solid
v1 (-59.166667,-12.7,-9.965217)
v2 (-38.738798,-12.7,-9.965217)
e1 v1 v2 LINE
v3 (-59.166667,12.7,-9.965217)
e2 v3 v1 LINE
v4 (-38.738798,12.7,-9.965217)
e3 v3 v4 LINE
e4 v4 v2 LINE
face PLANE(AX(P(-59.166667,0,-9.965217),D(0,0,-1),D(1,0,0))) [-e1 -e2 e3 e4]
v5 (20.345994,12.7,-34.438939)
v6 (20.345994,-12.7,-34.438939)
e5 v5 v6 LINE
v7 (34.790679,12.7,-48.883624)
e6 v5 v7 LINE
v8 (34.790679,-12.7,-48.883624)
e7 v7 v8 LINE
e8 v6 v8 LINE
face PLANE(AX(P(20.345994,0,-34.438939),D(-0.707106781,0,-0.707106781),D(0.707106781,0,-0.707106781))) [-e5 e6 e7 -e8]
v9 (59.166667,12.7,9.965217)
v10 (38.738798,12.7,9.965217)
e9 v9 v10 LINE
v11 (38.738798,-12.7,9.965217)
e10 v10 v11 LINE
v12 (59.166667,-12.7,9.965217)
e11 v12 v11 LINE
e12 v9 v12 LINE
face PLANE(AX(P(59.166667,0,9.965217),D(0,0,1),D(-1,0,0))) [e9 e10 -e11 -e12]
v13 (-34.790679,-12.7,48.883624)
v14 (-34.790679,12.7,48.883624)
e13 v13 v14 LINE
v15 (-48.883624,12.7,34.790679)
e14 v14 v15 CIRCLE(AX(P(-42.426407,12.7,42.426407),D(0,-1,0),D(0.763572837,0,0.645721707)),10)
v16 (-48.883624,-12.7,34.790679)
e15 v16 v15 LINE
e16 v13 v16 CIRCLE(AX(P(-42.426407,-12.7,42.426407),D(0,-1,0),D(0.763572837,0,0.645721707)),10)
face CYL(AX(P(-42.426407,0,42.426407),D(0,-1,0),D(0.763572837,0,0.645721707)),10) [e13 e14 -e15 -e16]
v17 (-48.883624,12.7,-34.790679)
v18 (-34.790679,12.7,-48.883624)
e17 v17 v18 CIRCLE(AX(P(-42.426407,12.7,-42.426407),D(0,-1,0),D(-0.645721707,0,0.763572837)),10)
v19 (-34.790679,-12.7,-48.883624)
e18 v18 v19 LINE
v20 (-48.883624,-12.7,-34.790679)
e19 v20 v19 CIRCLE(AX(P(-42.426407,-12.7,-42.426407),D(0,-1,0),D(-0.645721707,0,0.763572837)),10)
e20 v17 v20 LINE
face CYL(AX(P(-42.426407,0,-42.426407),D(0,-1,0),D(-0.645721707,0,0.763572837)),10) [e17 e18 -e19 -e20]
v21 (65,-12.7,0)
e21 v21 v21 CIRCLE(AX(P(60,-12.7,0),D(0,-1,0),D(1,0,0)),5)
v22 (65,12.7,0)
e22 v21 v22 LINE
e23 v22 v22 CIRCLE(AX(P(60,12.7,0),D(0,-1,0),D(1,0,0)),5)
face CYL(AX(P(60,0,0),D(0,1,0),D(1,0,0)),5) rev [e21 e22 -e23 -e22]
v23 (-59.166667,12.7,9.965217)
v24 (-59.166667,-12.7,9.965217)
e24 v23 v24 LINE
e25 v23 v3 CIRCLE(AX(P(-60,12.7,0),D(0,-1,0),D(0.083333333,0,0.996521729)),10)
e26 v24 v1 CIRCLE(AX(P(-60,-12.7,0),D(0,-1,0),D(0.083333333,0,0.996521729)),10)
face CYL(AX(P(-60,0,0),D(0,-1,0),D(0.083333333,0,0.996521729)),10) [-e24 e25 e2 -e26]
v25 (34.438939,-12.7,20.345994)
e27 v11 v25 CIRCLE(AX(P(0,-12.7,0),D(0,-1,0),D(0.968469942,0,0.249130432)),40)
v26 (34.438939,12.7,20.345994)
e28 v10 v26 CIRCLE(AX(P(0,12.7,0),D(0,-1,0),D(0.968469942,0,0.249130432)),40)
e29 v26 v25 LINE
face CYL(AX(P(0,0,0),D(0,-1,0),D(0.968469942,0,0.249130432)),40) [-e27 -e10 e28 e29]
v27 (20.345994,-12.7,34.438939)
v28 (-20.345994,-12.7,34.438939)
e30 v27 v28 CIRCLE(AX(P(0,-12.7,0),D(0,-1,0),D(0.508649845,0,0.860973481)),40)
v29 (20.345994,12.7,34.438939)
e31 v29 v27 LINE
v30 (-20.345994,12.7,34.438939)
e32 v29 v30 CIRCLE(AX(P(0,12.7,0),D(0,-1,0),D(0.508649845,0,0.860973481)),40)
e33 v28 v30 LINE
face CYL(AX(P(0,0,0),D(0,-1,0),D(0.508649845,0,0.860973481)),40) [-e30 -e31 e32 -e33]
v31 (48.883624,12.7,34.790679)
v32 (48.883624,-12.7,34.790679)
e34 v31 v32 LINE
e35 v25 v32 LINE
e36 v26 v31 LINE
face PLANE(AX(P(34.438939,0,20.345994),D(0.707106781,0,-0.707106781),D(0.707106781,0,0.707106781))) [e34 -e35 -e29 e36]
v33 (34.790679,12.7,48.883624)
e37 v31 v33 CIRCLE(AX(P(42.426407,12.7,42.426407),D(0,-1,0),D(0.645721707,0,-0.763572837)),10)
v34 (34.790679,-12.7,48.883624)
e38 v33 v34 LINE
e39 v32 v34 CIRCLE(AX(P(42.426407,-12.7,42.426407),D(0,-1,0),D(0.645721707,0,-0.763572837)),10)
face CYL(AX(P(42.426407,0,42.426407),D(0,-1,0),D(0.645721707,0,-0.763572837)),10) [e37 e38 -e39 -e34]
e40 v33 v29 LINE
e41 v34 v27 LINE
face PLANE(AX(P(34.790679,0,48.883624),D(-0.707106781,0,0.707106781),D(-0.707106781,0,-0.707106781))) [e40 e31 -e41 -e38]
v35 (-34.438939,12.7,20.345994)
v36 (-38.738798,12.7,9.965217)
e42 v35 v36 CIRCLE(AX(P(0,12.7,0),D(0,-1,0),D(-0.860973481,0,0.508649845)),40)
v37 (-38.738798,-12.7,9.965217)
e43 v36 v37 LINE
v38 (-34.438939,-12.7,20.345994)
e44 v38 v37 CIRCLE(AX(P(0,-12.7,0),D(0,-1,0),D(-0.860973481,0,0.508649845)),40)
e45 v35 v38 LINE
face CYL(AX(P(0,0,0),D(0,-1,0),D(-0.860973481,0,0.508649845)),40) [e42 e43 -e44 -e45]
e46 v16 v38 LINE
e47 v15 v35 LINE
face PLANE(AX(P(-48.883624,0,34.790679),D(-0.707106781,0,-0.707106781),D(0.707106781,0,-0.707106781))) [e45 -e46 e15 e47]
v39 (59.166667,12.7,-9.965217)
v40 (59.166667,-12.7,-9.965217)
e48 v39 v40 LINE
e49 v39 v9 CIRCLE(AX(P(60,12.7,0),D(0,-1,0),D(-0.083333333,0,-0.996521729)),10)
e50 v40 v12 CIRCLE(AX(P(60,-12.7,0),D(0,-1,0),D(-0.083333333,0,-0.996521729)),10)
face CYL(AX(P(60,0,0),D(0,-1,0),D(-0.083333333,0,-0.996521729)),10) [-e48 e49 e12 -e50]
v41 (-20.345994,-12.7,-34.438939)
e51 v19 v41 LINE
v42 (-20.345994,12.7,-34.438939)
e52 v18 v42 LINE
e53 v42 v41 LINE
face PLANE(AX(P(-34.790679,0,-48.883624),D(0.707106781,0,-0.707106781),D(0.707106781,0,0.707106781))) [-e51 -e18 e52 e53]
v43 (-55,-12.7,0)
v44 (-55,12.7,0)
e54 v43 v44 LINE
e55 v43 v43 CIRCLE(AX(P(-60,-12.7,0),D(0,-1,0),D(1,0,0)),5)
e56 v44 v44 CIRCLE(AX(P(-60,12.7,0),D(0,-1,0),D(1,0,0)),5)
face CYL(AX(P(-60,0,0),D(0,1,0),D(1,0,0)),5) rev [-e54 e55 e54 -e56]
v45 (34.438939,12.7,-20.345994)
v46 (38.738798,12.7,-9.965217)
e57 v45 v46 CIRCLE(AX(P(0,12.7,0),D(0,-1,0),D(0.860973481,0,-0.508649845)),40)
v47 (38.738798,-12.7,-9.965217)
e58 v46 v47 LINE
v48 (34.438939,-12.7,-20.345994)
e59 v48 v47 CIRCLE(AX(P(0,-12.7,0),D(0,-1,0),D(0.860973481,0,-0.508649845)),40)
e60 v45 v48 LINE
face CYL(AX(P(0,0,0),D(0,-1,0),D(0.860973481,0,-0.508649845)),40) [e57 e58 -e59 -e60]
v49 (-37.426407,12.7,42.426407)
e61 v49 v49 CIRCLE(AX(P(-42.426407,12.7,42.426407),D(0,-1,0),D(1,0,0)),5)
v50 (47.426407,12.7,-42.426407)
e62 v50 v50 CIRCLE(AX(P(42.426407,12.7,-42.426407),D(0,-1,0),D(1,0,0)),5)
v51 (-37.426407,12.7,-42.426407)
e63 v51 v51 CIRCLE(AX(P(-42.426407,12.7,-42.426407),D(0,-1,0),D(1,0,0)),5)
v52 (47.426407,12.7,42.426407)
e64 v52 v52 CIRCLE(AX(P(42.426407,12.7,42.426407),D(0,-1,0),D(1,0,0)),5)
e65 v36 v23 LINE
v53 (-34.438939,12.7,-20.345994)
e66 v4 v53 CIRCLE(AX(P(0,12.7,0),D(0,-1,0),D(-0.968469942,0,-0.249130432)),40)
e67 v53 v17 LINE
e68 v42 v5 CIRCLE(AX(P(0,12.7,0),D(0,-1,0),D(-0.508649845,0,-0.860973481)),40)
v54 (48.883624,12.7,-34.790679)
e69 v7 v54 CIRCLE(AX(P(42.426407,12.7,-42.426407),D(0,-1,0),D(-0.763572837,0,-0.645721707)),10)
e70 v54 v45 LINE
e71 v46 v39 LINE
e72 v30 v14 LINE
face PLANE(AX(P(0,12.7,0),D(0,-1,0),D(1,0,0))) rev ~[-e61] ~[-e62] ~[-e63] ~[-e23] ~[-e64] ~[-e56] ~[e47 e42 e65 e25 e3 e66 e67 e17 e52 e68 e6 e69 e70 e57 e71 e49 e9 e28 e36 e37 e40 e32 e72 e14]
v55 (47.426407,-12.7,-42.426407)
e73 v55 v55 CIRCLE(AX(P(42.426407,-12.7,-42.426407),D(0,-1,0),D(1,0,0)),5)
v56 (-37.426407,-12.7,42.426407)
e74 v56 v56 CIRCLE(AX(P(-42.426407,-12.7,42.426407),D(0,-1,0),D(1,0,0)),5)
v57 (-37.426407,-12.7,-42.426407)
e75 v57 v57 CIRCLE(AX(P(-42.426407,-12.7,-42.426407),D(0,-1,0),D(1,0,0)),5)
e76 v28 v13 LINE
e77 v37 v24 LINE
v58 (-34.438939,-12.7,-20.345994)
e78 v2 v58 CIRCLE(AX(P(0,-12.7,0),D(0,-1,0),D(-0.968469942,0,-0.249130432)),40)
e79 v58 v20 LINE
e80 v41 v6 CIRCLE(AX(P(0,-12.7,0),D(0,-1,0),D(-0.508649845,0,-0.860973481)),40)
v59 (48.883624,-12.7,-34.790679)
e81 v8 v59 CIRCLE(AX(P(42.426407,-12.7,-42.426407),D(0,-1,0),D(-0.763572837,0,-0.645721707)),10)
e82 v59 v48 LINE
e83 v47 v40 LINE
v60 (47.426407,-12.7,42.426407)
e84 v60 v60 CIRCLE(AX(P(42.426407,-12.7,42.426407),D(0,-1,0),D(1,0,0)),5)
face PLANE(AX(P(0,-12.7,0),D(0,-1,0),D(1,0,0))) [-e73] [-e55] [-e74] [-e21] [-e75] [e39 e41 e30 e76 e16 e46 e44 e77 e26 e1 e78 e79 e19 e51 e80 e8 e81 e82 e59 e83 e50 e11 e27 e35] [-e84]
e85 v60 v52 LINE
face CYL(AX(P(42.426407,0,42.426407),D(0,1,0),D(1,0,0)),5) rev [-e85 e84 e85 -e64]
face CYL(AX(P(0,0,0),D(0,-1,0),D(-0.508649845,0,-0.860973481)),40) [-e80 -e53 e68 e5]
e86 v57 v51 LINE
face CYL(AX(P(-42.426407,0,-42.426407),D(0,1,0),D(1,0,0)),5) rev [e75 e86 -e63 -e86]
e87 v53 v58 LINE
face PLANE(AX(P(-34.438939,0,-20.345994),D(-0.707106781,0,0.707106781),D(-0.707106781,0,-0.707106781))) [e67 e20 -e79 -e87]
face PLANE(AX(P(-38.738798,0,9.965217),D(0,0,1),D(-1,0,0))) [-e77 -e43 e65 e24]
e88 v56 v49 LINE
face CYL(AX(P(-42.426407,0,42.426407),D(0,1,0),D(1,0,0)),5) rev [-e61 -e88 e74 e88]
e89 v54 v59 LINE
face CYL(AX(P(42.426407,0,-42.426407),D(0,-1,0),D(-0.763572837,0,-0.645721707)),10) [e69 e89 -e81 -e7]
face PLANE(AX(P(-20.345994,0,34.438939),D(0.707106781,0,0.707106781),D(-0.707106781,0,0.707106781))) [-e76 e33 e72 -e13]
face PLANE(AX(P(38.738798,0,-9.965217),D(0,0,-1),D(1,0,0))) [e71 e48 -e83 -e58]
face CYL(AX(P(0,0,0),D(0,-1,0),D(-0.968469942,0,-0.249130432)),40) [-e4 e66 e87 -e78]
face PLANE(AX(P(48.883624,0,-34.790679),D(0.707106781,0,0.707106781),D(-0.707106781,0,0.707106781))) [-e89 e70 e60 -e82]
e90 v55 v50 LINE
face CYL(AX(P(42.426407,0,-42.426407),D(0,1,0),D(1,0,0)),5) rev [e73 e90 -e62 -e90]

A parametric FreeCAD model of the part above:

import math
import FreeCAD as App
import Part
import Sketcher

V = App.Vector
Q = App.Units.Quantity

doc = App.newDocument("Part")
body = doc.addObject("PartDesign::Body", "Body")

sketch1 = body.newObject("Sketcher::SketchObject", "Sketch")
sketch1.AttachmentSupport = (doc.getObject("XZ_Plane"), [""])
sketch1.MapMode = "FlatFace"
sketch1.addGeometry(Part.LineSegment(V(-48.883624, 34.790679, 0), V(-34.438939, 20.345994, 0)), False)
sketch1.addGeometry(Part.ArcOfCircle(Part.Circle(V(0, 0, 0), V(0, 0, 1), 40), math.radians(149.426062), math.radians(165.573938)), False)
sketch1.addGeometry(Part.LineSegment(V(-38.738798, 9.965217, 0), V(-59.166667, 9.965217, 0)), False)
sketch1.addGeometry(Part.ArcOfCircle(Part.Circle(V(-60, 0, 0), V(0, 0, 1), 10), math.radians(85.219808), math.radians(274.780192)), False)
sketch1.addGeometry(Part.LineSegment(V(-59.166667, -9.965217, 0), V(-38.738798, -9.965217, 0)), False)
sketch1.addGeometry(Part.ArcOfCircle(Part.Circle(V(0, 0, 0), V(0, 0, 1), 40), math.radians(-165.573938), math.radians(-149.426062)), False)
sketch1.addGeometry(Part.LineSegment(V(-34.438939, -20.345994, 0), V(-48.883624, -34.790679, 0)), False)
sketch1.addGeometry(Part.ArcOfCircle(Part.Circle(V(-42.426407, -42.426407, 0), V(0, 0, 1), 10), math.radians(130.219808), math.radians(319.780192)), False)
sketch1.addGeometry(Part.LineSegment(V(-34.790679, -48.883624, 0), V(-20.345994, -34.438939, 0)), False)
sketch1.addGeometry(Part.ArcOfCircle(Part.Circle(V(0, 0, 0), V(0, 0, 1), 40), math.radians(-120.573938), math.radians(-59.426062)), False)
sketch1.addGeometry(Part.LineSegment(V(20.345994, -34.438939, 0), V(34.790679, -48.883624, 0)), False)
sketch1.addGeometry(Part.ArcOfCircle(Part.Circle(V(42.426407, -42.426407, 0), V(0, 0, 1), 10), math.radians(-139.780192), math.radians(49.780192)), False)
sketch1.addGeometry(Part.LineSegment(V(48.883624, -34.790679, 0), V(34.438939, -20.345994, 0)), False)
sketch1.addGeometry(Part.ArcOfCircle(Part.Circle(V(0, 0, 0), V(0, 0, 1), 40), math.radians(-30.573938), math.radians(-14.426062)), False)
sketch1.addGeometry(Part.LineSegment(V(38.738798, -9.965217, 0), V(59.166667, -9.965217, 0)), False)
sketch1.addGeometry(Part.ArcOfCircle(Part.Circle(V(60, 0, 0), V(0, 0, 1), 10), math.radians(-94.780192), math.radians(94.780192)), False)
sketch1.addGeometry(Part.LineSegment(V(59.166667, 9.965217, 0), V(38.738798, 9.965217, 0)), False)
sketch1.addGeometry(Part.ArcOfCircle(Part.Circle(V(0, 0, 0), V(0, 0, 1), 40), math.radians(14.426062), math.radians(30.573938)), False)
sketch1.addGeometry(Part.LineSegment(V(34.438939, 20.345994, 0), V(48.883624, 34.790679, 0)), False)
sketch1.addGeometry(Part.ArcOfCircle(Part.Circle(V(42.426407, 42.426407, 0), V(0, 0, 1), 10), math.radians(-49.780192), math.radians(139.780192)), False)
sketch1.addGeometry(Part.LineSegment(V(34.790679, 48.883624, 0), V(20.345994, 34.438939, 0)), False)
sketch1.addGeometry(Part.ArcOfCircle(Part.Circle(V(0, 0, 0), V(0, 0, 1), 40), math.radians(59.426062), math.radians(120.573938)), False)
sketch1.addGeometry(Part.LineSegment(V(-20.345994, 34.438939, 0), V(-34.790679, 48.883624, 0)), False)
sketch1.addGeometry(Part.ArcOfCircle(Part.Circle(V(-42.426407, 42.426407, 0), V(0, 0, 1), 10), math.radians(40.219808), math.radians(229.780192)), False)
sketch1.addGeometry(Part.Circle(V(-42.426407, -42.426407, 0), V(0, 0, 1), 5), False)
sketch1.addGeometry(Part.Circle(V(42.426407, -42.426407, 0), V(0, 0, 1), 5), False)
sketch1.addGeometry(Part.Circle(V(-60, 0, 0), V(0, 0, 1), 5), False)
sketch1.addGeometry(Part.Circle(V(-42.426407, 42.426407, 0), V(0, 0, 1), 5), False)
sketch1.addGeometry(Part.Circle(V(60, 0, 0), V(0, 0, 1), 5), False)
sketch1.addGeometry(Part.Circle(V(42.426407, 42.426407, 0), V(0, 0, 1), 5), False)
sketch1.addConstraint(Sketcher.Constraint("Coincident", 0, 2, 1, 1))
sketch1.addConstraint(Sketcher.Constraint("Coincident", 1, 2, 2, 1))
sketch1.addConstraint(Sketcher.Constraint("Coincident", 2, 2, 3, 1))
sketch1.addConstraint(Sketcher.Constraint("Coincident", 3, 2, 4, 1))
sketch1.addConstraint(Sketcher.Constraint("Coincident", 4, 2, 5, 1))
sketch1.addConstraint(Sketcher.Constraint("Coincident", 5, 2, 6, 1))
sketch1.addConstraint(Sketcher.Constraint("Coincident", 6, 2, 7, 1))
sketch1.addConstraint(Sketcher.Constraint("Coincident", 7, 2, 8, 1))
sketch1.addConstraint(Sketcher.Constraint("Coincident", 8, 2, 9, 1))
sketch1.addConstraint(Sketcher.Constraint("Coincident", 9, 2, 10, 1))
sketch1.addConstraint(Sketcher.Constraint("Coincident", 10, 2, 11, 1))
sketch1.addConstraint(Sketcher.Constraint("Coincident", 11, 2, 12, 1))
sketch1.addConstraint(Sketcher.Constraint("Coincident", 12, 2, 13, 1))
sketch1.addConstraint(Sketcher.Constraint("Coincident", 13, 2, 14, 1))
sketch1.addConstraint(Sketcher.Constraint("Coincident", 14, 2, 15, 1))
sketch1.addConstraint(Sketcher.Constraint("Coincident", 15, 2, 16, 1))
sketch1.addConstraint(Sketcher.Constraint("Coincident", 16, 2, 17, 1))
sketch1.addConstraint(Sketcher.Constraint("Coincident", 17, 2, 18, 1))
sketch1.addConstraint(Sketcher.Constraint("Coincident", 18, 2, 19, 1))
sketch1.addConstraint(Sketcher.Constraint("Coincident", 19, 2, 20, 1))
sketch1.addConstraint(Sketcher.Constraint("Coincident", 20, 2, 21, 1))
sketch1.addConstraint(Sketcher.Constraint("Coincident", 21, 2, 22, 1))
sketch1.addConstraint(Sketcher.Constraint("Coincident", 22, 2, 23, 1))
sketch1.addConstraint(Sketcher.Constraint("Coincident", 23, 2, 0, 1))
sketch1.addConstraint(Sketcher.Constraint("Horizontal", 2))
sketch1.addConstraint(Sketcher.Constraint("Horizontal", 4))
sketch1.addConstraint(Sketcher.Constraint("Horizontal", 14))
sketch1.addConstraint(Sketcher.Constraint("Horizontal", 16))
sketch1.addConstraint(Sketcher.Constraint("Coincident", 1, 3, -1, 1))
sketch1.addConstraint(Sketcher.Constraint("Coincident", 5, 3, -1, 1))
sketch1.addConstraint(Sketcher.Constraint("Coincident", 9, 3, -1, 1))
sketch1.addConstraint(Sketcher.Constraint("Coincident", 13, 3, -1, 1))
sketch1.addConstraint(Sketcher.Constraint("Coincident", 17, 3, -1, 1))
sketch1.addConstraint(Sketcher.Constraint("Coincident", 21, 3, -1, 1))
sketch1.addConstraint(Sketcher.Constraint("Coincident", 24, 3, 7, 3))
sketch1.addConstraint(Sketcher.Constraint("Coincident", 25, 3, 11, 3))
sketch1.addConstraint(Sketcher.Constraint("Coincident", 26, 3, 3, 3))
sketch1.addConstraint(Sketcher.Constraint("Coincident", 27, 3, 23, 3))
sketch1.addConstraint(Sketcher.Constraint("Coincident", 28, 3, 15, 3))
sketch1.addConstraint(Sketcher.Constraint("Coincident", 29, 3, 19, 3))
sketch1.addConstraint(Sketcher.Constraint("Equal", 1, 5))
sketch1.addConstraint(Sketcher.Constraint("Equal", 3, 7))
sketch1.addConstraint(Sketcher.Constraint("Equal", 5, 9))
sketch1.addConstraint(Sketcher.Constraint("Equal", 7, 11))
sketch1.addConstraint(Sketcher.Constraint("Equal", 9, 13))
sketch1.addConstraint(Sketcher.Constraint("Equal", 11, 15))
sketch1.addConstraint(Sketcher.Constraint("Equal", 13, 17))
sketch1.addConstraint(Sketcher.Constraint("Equal", 15, 19))
sketch1.addConstraint(Sketcher.Constraint("Equal", 17, 21))
sketch1.addConstraint(Sketcher.Constraint("Equal", 19, 23))
sketch1.addConstraint(Sketcher.Constraint("Equal", 24, 25))
sketch1.addConstraint(Sketcher.Constraint("Equal", 25, 26))
sketch1.addConstraint(Sketcher.Constraint("Equal", 26, 27))
sketch1.addConstraint(Sketcher.Constraint("Equal", 27, 28))
sketch1.addConstraint(Sketcher.Constraint("Equal", 28, 29))
sketch1.addConstraint(Sketcher.Constraint("Symmetric", 3, 3, 15, 3, -1, 1))
sketch1.addConstraint(Sketcher.Constraint("Symmetric", 7, 3, 19, 3, -1, 1))
sketch1.addConstraint(Sketcher.Constraint("Symmetric", 11, 3, 23, 3, -1, 1))
sketch1.addConstraint(Sketcher.Constraint("Symmetric", 7, 3, 11, 3, -2))
sketch1.addConstraint(Sketcher.Constraint("Symmetric", 3, 2, 14, 2, -2))
sketch1.addConstraint(Sketcher.Constraint("Perpendicular", 0, 6))
sketch1.addConstraint(Sketcher.Constraint("Parallel", 6, 8))
sketch1.addConstraint(Sketcher.Constraint("Perpendicular", 8, 10))
sketch1.addConstraint(Sketcher.Constraint("Parallel", 10, 12))
sketch1.addConstraint(Sketcher.Constraint("Perpendicular", 12, 18))
sketch1.addConstraint(Sketcher.Constraint("Parallel", 18, 20))
sketch1.addConstraint(Sketcher.Constraint("Perpendicular", 20, 22))
sketch1.addConstraint(Sketcher.Constraint("Horizontal", 8, 2, 9, 2))
sketch1.addConstraint(Sketcher.Constraint("Horizontal", 7, 2, 10, 2))
sketch1.addConstraint(Sketcher.Constraint("Horizontal", 6, 2, 11, 2))
sketch1.addConstraint(Sketcher.Constraint("Horizontal", 2, 2, 15, 2))
sketch1.addConstraint(Sketcher.Constraint("Horizontal", 0, 2, 17, 2))
sketch1.addConstraint(Sketcher.Constraint("Horizontal", 20, 2, 21, 2))
sketch1.addConstraint(Sketcher.Constraint("Vertical", 2, 2, 3, 2))
sketch1.addConstraint(Sketcher.Constraint("Vertical", 0, 2, 5, 2))
sketch1.addConstraint(Sketcher.Constraint("Vertical", 10, 2, 19, 2))
sketch1.addConstraint(Sketcher.Constraint("Equal", 6, 8))
sketch1.addConstraint(Sketcher.Constraint("Diameter", 24, Q("10 mm")))
sketch1.addConstraint(Sketcher.Constraint("Radius", 1, Q("40 mm")))
sketch1.addConstraint(Sketcher.Constraint("Radius", 3, Q("10 mm")))
sketch1.addConstraint(Sketcher.Constraint("DistanceX", 3, 3, -1, 1, Q("60 mm")))
sketch1.addConstraint(Sketcher.Constraint("DistanceX", 2, 2, 2, 1, Q("20.427869 mm")))
sketch1.addConstraint(Sketcher.Constraint("Distance", 0, Q("20.427869 mm")))
sketch1.addConstraint(Sketcher.Constraint("DistanceX", 0, 2, -1, 1, Q("34.438939 mm")))
sketch1.addConstraint(Sketcher.Constraint("DistanceX", 7, 2, -1, 1, Q("34.790679 mm")))
pad1 = body.newObject("PartDesign::Pad", "Pad")
pad1.Profile = sketch1
pad1.Length = 25.4
pad1.Midplane = True

doc.recompute()
